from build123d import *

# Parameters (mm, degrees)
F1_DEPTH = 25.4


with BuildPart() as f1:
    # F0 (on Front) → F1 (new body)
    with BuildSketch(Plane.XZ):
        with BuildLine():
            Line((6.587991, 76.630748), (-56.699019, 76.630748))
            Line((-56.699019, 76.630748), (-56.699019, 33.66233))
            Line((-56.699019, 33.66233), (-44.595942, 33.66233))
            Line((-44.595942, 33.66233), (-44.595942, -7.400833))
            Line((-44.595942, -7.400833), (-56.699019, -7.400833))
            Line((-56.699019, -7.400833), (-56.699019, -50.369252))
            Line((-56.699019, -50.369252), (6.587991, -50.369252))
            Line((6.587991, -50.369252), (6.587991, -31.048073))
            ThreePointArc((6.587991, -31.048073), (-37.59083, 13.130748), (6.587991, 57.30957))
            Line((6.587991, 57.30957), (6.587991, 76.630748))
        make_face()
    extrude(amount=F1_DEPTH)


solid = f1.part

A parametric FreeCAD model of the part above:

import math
import FreeCAD as App
import Part
import Sketcher
from FreeCAD import Vector
Q = App.Units.Quantity

doc = App.newDocument("Part")
body = doc.addObject("PartDesign::Body", "Body")

sketch1 = body.newObject("Sketcher::SketchObject", "Sketch")
sketch1.AttachmentSupport = (doc.getObject("XZ_Plane"), [""])
sketch1.MapMode = "FlatFace"
sketch1.addGeometry([
    Part.LineSegment(Vector(7, 77, 0), Vector(-57, 77, 0)),
    Part.LineSegment(Vector(-57, 77, 0), Vector(-57, 34, 0)),
    Part.LineSegment(Vector(-57, 34, 0), Vector(-45, 34, 0)),
    Part.LineSegment(Vector(-45, 34, 0), Vector(-45, -7, 0)),
    Part.LineSegment(Vector(-45, -7, 0), Vector(-57, -7, 0)),
    Part.LineSegment(Vector(-57, -7, 0), Vector(-57, -50, 0)),
    Part.LineSegment(Vector(-57, -50, 0), Vector(7, -50, 0)),
    Part.LineSegment(Vector(7, -50, 0), Vector(7, -31, 0)),
    Part.ArcOfCircle(Part.Circle(Vector(7, 13, 0), Vector(0, 0, 1), 44), math.radians(90), math.radians(270)),
    Part.LineSegment(Vector(7, 57, 0), Vector(7, 77, 0)),
], False)
sketch1.addConstraint([
    Sketcher.Constraint("Coincident", 0, 2, 1, 1),
    Sketcher.Constraint("Coincident", 1, 2, 2, 1),
    Sketcher.Constraint("Coincident", 2, 2, 3, 1),
    Sketcher.Constraint("Coincident", 3, 2, 4, 1),
    Sketcher.Constraint("Coincident", 4, 2, 5, 1),
    Sketcher.Constraint("Coincident", 5, 2, 6, 1),
    Sketcher.Constraint("Coincident", 6, 2, 7, 1),
    Sketcher.Constraint("Coincident", 7, 2, 8, 2),
    Sketcher.Constraint("Coincident", 8, 1, 9, 1),
    Sketcher.Constraint("Coincident", 9, 2, 0, 1),
    Sketcher.Constraint("Horizontal", 0),
    Sketcher.Constraint("Vertical", 1),
    Sketcher.Constraint("Horizontal", 2),
    Sketcher.Constraint("Vertical", 3),
    Sketcher.Constraint("Horizontal", 4),
    Sketcher.Constraint("Vertical", 5),
    Sketcher.Constraint("Horizontal", 6),
    Sketcher.Constraint("Vertical", 7),
    Sketcher.Constraint("Vertical", 9),
    Sketcher.Constraint("Vertical", 1, 2, 4, 2),
    Sketcher.Constraint("Vertical", 8, 3, 6, 2),
    Sketcher.Constraint("Vertical", 7, 2, 8, 1),
    Sketcher.Constraint("Equal", 1, 5),
    Sketcher.Constraint("Equal", 7, 9),
    Sketcher.Constraint("DistanceY", 8, 3, 0, 2, Q("2.5 in")),
    Sketcher.Constraint("Radius", 8, Q("44.178821 mm")),
    Sketcher.Constraint("DistanceX", 0, 2, 0, 1, Q("63.28701 mm")),
    Sketcher.Constraint("DistanceY", 5, 2, 5, 1, Q("42.968419 mm")),
    Sketcher.Constraint("DistanceX", 2, 1, 2, 2, Q("12.103077 mm")),
    Sketcher.Constraint("DistanceX", -1, 1, 8, 3, Q("6.587992 mm")),
    Sketcher.Constraint("DistanceY", -1, 1, 8, 3, Q("13.130748 mm")),
])
pad1 = body.newObject("PartDesign::Pad", "Pad")
pad1.Profile = sketch1
pad1.Length = Q("1 in")

doc.recompute()
